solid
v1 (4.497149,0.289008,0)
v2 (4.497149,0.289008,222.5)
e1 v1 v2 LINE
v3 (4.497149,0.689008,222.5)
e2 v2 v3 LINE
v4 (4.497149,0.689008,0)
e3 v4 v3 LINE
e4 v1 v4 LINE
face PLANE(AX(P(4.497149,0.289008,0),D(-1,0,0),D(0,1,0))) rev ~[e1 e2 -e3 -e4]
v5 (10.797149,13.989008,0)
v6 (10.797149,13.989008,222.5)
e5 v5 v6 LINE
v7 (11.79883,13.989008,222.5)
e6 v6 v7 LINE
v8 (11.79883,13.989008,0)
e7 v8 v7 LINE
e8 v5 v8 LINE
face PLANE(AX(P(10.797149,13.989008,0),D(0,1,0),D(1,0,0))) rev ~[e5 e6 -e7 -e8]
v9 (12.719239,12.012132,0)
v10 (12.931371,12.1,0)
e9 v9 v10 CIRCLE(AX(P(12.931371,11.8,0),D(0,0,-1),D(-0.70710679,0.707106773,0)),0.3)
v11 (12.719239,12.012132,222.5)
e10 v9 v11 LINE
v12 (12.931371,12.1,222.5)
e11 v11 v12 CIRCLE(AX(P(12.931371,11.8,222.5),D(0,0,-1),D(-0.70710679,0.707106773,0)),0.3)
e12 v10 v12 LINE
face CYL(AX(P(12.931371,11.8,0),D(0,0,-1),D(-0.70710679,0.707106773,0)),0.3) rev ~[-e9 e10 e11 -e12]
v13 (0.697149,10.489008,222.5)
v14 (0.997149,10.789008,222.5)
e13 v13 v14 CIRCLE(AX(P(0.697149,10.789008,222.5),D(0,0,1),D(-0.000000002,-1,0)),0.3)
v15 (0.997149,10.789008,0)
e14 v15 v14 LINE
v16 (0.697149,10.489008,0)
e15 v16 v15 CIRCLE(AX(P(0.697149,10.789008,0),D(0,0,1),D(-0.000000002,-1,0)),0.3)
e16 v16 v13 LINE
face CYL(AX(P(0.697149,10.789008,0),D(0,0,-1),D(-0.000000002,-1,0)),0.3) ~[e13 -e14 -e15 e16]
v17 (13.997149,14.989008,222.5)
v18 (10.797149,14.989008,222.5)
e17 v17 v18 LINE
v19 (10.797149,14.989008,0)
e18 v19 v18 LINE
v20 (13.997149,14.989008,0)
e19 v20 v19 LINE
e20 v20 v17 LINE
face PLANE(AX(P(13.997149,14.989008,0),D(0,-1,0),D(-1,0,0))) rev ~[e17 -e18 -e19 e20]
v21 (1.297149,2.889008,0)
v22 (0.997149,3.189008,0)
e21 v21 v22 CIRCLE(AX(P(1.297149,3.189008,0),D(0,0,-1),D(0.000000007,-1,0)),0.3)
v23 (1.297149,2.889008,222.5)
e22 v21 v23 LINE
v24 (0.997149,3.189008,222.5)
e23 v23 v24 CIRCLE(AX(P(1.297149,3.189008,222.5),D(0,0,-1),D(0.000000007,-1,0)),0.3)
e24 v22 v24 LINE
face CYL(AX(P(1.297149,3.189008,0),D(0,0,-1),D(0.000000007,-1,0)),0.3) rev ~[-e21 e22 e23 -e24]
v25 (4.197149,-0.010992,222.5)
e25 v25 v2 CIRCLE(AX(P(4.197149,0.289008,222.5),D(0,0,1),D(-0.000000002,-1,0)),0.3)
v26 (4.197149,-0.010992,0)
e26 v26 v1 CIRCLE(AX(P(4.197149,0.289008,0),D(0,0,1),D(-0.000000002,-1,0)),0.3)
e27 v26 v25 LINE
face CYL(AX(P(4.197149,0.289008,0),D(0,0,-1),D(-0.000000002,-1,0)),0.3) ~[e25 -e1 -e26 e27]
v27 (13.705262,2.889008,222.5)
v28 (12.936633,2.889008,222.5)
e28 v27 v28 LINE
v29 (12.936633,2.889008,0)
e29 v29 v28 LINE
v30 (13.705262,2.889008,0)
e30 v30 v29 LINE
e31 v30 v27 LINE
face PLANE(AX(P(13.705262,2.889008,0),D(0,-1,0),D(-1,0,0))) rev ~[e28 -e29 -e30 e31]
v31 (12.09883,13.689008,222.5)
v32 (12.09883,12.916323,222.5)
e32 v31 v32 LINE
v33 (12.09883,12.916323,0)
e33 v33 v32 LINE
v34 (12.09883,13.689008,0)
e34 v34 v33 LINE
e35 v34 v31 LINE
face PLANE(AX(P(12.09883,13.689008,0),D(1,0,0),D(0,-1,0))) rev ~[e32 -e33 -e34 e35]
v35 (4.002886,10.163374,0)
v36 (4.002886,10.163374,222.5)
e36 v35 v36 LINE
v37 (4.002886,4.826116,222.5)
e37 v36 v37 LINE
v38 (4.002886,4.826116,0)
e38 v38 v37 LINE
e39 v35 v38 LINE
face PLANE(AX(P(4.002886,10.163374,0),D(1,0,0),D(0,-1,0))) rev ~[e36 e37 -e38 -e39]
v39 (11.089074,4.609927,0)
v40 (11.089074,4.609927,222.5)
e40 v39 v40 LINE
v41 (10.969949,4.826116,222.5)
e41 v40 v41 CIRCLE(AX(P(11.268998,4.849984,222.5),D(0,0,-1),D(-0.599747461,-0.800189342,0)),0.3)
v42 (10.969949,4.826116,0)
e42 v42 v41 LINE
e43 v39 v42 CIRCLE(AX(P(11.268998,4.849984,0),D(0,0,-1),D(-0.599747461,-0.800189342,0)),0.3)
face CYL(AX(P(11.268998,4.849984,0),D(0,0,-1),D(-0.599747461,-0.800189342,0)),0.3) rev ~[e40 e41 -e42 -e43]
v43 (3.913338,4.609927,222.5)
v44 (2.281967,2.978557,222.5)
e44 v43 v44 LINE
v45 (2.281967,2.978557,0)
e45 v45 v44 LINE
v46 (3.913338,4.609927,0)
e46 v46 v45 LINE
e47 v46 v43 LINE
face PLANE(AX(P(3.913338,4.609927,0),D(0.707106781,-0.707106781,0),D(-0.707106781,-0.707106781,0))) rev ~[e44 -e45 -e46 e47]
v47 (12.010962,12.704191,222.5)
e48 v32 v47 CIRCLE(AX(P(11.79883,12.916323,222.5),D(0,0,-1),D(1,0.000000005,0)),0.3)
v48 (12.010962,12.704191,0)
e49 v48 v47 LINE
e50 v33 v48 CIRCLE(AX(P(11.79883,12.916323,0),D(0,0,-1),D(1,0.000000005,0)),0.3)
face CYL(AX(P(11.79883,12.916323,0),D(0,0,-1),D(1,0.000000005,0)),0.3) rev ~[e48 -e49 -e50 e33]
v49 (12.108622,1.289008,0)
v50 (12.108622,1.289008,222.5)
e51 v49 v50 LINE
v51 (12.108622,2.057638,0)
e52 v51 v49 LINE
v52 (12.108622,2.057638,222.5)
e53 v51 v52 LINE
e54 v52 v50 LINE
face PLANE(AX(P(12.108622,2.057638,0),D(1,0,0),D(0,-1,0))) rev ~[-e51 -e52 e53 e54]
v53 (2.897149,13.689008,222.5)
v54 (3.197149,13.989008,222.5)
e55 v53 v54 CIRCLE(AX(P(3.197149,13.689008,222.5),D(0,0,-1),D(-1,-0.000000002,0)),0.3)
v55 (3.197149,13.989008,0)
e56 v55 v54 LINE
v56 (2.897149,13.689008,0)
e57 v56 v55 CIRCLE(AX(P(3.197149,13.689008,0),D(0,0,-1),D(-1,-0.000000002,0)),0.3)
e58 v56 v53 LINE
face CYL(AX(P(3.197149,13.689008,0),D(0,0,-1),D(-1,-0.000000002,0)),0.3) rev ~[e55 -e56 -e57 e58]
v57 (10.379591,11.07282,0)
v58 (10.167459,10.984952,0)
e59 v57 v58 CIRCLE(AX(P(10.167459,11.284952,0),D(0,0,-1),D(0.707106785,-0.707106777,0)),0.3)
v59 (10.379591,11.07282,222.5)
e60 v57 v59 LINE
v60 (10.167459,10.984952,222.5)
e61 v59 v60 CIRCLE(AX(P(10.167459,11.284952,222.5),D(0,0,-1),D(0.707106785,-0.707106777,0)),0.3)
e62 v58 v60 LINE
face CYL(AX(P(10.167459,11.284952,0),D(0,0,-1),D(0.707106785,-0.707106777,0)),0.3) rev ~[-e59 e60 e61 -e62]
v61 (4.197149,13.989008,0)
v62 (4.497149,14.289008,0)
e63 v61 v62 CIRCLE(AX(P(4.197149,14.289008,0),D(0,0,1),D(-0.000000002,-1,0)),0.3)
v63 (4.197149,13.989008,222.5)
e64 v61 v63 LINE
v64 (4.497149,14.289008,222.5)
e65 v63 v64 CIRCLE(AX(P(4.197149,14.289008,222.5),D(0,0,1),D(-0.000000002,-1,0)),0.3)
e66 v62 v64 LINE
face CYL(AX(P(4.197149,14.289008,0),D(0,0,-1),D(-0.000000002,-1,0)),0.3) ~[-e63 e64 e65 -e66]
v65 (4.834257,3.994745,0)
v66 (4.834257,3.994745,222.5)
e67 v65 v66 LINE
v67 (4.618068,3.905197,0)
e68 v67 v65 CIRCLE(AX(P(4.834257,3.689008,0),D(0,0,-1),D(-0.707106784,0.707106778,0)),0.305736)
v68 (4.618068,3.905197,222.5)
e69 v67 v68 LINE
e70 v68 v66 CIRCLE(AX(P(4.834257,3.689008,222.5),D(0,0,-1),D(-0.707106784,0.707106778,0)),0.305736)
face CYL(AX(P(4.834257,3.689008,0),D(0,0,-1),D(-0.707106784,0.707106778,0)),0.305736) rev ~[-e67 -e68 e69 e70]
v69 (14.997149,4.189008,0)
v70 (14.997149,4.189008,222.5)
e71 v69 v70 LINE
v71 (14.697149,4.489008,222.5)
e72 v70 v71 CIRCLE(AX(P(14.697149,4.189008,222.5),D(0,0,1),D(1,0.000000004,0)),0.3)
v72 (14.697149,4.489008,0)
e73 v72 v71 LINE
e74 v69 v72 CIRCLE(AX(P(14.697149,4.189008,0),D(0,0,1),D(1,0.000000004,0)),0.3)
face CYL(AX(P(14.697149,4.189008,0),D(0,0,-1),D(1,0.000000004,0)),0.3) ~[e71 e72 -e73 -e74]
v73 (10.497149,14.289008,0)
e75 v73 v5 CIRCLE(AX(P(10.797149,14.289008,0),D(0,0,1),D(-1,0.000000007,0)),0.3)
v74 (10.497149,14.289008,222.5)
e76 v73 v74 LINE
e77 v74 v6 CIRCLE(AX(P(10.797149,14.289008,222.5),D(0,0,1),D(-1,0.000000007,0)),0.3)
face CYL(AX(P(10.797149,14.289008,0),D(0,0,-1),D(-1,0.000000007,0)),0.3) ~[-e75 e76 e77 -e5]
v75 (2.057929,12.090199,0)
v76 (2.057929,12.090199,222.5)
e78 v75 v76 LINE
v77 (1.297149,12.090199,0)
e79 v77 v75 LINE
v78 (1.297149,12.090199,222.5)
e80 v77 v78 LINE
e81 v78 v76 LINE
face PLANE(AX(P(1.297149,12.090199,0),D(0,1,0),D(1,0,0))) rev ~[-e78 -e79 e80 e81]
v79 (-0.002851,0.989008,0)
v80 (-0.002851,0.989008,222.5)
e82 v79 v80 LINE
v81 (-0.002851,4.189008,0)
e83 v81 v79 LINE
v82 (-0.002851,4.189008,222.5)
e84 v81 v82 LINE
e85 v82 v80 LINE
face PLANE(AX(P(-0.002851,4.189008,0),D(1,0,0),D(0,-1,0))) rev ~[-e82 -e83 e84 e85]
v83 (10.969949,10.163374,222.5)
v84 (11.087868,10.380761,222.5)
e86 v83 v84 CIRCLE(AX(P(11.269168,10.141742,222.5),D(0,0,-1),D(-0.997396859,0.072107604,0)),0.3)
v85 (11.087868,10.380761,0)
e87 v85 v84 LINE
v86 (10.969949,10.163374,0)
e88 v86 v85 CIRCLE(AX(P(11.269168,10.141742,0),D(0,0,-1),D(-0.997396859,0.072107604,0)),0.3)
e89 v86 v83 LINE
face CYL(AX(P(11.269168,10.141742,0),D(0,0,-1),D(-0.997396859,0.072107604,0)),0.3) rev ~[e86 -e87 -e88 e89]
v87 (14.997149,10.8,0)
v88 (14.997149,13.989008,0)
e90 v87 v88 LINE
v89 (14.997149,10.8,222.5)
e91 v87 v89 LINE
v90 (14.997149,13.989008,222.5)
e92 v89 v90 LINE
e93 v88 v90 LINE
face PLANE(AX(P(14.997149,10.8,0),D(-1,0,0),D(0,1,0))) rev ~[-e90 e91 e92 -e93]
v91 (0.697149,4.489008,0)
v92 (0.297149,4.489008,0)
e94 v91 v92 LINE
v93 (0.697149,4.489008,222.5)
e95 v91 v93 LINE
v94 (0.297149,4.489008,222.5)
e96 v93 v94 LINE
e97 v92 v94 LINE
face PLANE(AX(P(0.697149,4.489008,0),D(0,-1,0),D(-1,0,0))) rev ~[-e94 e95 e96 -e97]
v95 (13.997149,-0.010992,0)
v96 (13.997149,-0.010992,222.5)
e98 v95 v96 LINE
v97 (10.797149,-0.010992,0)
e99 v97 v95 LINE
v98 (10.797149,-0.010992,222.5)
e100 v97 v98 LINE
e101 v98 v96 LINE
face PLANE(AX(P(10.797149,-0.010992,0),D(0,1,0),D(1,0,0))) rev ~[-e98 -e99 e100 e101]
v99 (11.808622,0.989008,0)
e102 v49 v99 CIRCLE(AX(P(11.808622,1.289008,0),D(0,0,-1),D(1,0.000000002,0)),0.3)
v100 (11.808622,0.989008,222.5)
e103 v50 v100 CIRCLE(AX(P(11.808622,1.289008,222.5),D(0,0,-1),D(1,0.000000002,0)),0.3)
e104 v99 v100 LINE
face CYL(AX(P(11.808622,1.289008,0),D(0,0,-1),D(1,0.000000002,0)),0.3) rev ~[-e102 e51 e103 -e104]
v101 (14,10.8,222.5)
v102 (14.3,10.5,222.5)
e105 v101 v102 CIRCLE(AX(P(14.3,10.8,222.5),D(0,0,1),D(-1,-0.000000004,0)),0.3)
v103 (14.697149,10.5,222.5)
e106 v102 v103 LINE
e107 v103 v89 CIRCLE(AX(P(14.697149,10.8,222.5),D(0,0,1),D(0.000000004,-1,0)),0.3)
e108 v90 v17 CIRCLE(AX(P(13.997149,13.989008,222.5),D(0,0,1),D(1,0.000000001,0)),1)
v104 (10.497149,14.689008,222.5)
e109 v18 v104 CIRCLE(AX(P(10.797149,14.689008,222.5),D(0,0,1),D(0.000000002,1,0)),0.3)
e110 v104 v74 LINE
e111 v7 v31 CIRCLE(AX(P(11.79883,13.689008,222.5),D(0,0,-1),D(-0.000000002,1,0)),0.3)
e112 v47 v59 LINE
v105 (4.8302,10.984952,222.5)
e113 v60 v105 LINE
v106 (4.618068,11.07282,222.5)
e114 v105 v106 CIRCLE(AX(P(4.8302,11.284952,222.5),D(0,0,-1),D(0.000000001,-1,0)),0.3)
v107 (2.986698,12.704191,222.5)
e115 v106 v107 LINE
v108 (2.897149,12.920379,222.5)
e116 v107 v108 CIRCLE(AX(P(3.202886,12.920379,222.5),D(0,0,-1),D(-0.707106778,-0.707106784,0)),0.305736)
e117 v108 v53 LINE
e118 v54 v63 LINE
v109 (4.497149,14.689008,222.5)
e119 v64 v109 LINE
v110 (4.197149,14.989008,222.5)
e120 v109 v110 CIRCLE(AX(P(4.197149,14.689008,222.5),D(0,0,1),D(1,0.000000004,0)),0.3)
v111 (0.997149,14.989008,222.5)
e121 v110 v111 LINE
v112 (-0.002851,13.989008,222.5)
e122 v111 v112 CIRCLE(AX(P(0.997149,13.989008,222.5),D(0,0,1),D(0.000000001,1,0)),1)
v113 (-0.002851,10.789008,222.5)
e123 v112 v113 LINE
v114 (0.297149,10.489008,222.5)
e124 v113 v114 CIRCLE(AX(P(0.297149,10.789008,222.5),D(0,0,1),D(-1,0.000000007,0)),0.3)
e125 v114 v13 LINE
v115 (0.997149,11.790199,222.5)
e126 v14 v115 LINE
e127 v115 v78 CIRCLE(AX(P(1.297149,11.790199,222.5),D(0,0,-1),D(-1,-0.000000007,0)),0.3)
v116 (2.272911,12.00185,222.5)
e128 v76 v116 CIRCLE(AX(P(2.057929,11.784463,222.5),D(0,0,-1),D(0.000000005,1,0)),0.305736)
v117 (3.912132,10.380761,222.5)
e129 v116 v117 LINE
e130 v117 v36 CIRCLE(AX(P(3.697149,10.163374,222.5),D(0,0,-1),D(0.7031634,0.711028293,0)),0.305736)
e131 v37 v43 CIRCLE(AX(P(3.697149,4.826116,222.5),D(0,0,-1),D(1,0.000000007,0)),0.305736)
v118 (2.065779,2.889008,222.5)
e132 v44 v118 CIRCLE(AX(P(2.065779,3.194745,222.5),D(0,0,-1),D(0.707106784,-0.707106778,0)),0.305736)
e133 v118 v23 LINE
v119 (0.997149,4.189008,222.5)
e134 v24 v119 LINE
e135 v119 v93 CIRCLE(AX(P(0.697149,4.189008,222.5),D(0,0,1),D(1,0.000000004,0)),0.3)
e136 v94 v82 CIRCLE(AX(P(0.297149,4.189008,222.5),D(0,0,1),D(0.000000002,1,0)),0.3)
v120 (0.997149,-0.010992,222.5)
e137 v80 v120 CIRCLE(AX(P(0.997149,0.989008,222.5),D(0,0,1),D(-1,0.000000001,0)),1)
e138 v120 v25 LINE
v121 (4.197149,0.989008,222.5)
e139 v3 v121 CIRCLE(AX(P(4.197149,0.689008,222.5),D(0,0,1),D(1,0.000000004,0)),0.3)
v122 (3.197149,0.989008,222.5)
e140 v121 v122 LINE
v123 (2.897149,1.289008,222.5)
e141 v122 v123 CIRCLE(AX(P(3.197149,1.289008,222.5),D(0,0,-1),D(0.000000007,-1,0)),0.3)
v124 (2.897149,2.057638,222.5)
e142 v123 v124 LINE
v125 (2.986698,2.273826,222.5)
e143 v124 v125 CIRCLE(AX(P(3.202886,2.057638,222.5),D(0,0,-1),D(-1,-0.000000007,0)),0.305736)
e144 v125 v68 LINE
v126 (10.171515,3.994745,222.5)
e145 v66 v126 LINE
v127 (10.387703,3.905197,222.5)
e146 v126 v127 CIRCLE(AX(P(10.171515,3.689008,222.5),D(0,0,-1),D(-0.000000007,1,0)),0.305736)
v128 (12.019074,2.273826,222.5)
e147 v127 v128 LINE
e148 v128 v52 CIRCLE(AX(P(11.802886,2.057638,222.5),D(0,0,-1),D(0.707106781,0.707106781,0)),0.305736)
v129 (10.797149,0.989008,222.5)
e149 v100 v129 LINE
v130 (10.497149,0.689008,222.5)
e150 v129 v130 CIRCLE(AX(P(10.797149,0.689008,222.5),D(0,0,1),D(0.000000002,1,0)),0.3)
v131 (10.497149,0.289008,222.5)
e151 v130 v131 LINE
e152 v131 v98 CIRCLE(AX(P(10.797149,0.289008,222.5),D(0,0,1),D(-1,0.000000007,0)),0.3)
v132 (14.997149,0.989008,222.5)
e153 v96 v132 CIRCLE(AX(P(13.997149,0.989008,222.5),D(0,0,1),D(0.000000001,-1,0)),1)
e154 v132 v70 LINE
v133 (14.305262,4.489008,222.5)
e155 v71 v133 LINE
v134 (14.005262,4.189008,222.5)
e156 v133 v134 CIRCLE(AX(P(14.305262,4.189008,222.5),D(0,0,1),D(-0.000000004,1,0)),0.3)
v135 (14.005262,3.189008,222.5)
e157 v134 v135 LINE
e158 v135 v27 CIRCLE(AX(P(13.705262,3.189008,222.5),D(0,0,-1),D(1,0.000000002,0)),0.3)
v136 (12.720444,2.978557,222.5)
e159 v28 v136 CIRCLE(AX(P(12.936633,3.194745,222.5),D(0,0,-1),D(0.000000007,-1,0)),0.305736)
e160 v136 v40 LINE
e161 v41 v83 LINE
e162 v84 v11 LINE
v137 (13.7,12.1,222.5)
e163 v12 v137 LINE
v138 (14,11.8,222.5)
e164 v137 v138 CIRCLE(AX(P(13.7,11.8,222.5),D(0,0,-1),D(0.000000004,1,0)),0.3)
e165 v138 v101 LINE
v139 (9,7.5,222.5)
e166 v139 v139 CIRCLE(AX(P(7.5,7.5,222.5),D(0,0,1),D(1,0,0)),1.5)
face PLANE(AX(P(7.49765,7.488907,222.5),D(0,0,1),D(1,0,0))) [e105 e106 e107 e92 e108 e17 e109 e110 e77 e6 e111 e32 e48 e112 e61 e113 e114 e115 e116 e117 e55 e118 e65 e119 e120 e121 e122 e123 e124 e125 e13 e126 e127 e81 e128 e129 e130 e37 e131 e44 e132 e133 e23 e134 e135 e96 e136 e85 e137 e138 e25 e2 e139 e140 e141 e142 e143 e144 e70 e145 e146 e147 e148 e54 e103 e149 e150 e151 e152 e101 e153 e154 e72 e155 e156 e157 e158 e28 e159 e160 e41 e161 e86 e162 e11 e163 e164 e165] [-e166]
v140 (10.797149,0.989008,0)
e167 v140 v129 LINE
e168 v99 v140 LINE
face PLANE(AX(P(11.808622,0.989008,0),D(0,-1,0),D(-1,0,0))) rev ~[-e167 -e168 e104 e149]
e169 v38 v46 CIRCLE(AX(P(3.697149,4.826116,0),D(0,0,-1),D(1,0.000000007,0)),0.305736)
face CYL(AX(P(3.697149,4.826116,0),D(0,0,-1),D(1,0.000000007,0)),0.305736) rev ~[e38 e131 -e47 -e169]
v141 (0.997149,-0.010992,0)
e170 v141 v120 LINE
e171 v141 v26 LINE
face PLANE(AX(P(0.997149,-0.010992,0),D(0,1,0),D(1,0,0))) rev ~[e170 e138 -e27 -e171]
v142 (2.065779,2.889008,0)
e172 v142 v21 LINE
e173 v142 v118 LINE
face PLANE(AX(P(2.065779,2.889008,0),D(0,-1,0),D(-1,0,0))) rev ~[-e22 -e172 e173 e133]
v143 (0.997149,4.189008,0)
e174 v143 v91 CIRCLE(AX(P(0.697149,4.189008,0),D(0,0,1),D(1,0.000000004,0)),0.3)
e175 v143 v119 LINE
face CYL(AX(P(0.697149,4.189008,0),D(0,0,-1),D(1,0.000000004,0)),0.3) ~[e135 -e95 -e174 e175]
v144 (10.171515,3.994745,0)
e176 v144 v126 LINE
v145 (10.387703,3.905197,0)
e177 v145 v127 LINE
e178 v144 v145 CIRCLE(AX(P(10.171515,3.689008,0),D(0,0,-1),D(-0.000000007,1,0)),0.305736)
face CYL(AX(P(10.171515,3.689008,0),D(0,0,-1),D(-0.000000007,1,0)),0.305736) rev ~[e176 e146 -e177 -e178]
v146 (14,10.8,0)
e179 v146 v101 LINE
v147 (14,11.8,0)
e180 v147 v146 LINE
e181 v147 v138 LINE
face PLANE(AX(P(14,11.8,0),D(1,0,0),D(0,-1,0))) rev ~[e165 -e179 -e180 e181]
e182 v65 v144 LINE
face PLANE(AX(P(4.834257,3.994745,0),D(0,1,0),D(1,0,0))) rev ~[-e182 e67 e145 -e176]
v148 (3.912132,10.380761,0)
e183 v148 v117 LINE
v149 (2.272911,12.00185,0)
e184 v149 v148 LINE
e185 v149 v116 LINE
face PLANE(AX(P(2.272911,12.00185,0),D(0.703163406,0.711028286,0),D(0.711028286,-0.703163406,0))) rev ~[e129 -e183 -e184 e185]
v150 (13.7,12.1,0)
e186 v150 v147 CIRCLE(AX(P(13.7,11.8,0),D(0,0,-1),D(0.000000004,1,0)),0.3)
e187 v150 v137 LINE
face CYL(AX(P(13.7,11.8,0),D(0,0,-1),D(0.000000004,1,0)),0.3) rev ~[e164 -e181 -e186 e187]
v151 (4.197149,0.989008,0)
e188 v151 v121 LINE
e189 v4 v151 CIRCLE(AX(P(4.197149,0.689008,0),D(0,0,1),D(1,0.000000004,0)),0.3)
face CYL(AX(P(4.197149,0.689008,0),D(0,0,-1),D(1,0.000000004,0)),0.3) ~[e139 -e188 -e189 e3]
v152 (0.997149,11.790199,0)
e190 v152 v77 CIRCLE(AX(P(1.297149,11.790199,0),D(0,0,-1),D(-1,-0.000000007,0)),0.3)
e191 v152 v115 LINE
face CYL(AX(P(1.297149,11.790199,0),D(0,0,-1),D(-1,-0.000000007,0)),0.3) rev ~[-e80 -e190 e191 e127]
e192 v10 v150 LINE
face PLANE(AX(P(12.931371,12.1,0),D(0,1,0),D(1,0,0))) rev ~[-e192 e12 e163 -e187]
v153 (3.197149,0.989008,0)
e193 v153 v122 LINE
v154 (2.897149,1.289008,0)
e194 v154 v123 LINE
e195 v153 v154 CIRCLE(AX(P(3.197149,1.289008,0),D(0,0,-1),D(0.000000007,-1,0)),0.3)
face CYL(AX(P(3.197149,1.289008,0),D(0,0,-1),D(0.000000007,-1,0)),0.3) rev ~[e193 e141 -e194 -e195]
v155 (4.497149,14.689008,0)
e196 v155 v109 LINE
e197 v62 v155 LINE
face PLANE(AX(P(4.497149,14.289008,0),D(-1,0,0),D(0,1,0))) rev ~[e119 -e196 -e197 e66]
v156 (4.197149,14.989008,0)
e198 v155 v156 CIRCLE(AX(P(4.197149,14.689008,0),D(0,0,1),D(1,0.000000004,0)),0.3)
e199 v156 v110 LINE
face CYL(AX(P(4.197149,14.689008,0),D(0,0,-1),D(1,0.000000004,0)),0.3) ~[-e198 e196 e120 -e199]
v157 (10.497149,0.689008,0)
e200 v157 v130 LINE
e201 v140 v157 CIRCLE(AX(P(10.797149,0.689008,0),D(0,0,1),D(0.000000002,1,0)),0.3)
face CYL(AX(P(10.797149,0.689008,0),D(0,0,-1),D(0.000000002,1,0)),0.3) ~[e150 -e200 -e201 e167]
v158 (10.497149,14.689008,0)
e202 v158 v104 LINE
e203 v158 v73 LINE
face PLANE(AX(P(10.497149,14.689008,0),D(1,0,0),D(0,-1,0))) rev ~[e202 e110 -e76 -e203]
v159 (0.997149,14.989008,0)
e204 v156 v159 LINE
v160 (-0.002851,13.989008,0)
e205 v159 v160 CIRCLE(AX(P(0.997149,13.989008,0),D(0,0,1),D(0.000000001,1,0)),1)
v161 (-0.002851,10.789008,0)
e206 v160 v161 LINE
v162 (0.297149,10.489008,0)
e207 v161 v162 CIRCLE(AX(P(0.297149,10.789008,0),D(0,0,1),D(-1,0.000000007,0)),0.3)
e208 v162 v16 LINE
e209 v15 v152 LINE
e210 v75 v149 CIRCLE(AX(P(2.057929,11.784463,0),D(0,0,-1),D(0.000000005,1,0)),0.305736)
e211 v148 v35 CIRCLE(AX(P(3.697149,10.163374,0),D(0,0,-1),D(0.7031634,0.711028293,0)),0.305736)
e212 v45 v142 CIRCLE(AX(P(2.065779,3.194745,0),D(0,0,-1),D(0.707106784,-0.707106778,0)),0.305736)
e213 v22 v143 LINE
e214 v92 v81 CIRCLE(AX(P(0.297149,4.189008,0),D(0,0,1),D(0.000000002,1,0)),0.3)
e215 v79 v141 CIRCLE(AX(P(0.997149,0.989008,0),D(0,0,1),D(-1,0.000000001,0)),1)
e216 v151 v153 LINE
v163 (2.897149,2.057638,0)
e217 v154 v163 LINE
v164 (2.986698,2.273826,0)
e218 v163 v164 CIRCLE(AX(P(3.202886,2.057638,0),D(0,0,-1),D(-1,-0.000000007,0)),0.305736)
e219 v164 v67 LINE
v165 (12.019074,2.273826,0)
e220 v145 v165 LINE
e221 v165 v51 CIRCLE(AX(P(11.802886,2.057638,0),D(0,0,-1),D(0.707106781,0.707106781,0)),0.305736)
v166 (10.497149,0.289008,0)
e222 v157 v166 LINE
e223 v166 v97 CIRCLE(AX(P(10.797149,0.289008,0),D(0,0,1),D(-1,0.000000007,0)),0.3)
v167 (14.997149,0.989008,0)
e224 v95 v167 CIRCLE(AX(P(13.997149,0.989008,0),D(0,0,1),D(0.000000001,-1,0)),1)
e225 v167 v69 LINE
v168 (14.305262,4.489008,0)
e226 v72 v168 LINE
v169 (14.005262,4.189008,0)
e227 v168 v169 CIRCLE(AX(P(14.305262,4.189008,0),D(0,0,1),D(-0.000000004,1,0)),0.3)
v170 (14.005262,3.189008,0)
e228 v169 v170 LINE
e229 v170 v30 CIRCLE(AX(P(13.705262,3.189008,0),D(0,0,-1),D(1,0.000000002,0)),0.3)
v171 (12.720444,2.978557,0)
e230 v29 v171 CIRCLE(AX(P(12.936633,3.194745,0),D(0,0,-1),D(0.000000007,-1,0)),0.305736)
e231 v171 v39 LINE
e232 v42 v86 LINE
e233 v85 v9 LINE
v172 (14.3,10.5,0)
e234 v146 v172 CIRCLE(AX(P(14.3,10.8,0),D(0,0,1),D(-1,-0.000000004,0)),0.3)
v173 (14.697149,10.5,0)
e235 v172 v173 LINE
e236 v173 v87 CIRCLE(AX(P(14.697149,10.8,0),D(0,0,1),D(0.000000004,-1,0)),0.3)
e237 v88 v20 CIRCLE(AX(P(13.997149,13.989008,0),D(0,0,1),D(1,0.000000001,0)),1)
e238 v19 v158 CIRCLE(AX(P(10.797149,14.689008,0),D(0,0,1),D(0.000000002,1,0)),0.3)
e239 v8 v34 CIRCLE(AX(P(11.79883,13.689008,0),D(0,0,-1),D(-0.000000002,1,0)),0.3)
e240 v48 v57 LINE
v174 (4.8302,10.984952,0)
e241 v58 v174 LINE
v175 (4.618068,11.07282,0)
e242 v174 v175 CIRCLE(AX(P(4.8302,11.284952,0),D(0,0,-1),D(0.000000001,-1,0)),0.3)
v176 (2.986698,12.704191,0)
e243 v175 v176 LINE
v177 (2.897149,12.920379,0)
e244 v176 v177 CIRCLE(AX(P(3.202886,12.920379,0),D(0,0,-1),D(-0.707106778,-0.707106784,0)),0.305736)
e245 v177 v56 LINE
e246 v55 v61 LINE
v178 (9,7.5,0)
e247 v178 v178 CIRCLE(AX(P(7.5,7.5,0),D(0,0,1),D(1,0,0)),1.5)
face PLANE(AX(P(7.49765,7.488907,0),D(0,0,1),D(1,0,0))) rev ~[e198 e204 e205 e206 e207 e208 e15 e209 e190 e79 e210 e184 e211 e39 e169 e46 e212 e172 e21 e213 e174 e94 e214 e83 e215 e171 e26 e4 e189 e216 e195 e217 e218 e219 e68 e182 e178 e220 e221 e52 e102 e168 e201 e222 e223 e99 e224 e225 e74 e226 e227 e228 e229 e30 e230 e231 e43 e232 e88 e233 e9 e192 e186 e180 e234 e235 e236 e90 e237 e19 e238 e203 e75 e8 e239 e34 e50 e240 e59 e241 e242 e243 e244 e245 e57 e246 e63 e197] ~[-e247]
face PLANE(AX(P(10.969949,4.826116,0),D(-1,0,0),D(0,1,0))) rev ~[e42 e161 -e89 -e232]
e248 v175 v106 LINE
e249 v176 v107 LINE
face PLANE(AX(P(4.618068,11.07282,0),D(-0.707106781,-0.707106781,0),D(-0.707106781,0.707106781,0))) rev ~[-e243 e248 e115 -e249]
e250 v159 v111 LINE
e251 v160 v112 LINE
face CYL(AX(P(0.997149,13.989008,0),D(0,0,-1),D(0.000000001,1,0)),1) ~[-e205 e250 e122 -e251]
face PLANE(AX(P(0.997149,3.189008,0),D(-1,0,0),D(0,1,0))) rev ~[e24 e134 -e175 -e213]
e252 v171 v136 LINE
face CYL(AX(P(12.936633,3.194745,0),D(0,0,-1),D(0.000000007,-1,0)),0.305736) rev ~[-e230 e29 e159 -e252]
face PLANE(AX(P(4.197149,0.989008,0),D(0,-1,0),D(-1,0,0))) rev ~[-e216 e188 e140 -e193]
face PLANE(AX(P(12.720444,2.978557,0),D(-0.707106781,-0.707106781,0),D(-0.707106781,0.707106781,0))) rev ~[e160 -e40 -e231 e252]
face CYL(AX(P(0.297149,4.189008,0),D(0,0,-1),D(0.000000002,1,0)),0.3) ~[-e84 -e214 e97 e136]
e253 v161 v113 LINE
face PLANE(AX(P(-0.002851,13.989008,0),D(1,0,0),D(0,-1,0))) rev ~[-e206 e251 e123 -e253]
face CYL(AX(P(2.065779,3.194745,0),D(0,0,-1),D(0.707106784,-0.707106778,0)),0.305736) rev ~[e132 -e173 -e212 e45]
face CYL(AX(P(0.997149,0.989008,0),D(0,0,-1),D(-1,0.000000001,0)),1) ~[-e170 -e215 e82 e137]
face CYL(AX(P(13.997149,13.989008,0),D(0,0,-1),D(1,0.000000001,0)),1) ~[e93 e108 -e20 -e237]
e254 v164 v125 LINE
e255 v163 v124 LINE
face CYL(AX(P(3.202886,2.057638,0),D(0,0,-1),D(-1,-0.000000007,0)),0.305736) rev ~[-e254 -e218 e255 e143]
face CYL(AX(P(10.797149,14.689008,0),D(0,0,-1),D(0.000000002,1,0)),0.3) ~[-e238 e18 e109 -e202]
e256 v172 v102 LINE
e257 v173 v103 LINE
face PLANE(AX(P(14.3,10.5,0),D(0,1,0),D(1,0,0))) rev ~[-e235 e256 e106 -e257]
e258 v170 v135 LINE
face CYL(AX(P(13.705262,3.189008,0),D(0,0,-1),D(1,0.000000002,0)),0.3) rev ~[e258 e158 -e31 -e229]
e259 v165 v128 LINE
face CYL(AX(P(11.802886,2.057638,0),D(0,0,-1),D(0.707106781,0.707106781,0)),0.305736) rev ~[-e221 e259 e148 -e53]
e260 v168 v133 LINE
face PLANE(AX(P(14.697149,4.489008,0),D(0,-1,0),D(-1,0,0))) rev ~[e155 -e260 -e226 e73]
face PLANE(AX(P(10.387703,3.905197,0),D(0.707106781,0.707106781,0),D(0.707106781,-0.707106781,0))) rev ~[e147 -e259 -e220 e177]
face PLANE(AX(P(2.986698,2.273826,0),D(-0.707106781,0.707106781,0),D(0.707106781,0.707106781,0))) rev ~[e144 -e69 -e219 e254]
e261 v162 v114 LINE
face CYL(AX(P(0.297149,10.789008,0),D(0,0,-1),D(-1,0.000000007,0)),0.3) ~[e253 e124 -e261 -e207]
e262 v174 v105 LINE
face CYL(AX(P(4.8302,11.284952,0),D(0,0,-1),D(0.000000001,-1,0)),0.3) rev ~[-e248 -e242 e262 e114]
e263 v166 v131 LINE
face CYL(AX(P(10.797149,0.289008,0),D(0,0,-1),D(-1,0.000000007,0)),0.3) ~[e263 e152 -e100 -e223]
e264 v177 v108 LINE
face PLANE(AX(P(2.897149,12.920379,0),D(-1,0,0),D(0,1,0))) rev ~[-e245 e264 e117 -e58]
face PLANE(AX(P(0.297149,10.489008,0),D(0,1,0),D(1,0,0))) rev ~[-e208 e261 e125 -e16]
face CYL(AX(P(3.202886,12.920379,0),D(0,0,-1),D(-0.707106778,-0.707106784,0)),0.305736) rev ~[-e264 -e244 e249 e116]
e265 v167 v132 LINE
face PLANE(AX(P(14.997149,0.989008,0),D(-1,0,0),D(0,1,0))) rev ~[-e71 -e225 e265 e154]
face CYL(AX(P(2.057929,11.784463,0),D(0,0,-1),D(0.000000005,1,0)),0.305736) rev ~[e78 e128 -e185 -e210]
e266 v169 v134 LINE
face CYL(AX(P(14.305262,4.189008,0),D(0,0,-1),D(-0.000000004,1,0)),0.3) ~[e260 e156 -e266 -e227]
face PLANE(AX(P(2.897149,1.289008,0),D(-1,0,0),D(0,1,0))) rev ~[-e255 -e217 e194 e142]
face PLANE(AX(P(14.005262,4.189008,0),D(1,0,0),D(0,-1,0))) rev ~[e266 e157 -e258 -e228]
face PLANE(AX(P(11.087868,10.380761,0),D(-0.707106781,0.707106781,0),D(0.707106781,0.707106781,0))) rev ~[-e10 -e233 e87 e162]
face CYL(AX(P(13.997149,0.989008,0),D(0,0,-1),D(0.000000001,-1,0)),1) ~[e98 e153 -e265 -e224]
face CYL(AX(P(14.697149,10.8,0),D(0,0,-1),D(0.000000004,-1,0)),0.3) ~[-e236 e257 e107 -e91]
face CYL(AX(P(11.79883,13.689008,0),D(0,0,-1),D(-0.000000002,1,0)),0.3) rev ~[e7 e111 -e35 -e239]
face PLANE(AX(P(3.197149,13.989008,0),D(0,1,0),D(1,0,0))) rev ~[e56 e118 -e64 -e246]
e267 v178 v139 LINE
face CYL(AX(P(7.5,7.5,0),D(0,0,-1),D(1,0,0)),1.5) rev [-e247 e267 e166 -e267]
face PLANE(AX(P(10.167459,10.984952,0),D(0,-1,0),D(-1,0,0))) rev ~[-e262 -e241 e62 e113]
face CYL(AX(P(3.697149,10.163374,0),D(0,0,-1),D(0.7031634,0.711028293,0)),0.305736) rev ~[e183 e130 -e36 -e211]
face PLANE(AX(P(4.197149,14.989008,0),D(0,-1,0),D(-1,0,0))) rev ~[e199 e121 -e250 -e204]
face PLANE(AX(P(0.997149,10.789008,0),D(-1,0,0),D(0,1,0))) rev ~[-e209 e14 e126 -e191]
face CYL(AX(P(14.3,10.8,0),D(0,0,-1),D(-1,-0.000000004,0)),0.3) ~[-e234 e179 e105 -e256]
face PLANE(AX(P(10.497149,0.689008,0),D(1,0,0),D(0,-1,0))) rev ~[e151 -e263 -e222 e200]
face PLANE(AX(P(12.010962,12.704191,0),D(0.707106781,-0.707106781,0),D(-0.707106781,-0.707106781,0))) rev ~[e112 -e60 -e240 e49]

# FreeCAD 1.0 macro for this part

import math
import FreeCAD as App
import Part
import Sketcher

V = App.Vector

doc = App.newDocument("Part")
body = doc.addObject("PartDesign::Body", "Body")

# Sketch on XY plane
sketch1 = body.newObject("Sketcher::SketchObject", "Sketch")
sketch1.AttachmentSupport = (doc.getObject("XY_Plane"), [""])
sketch1.MapMode = "FlatFace"
sketch1.addGeometry(Part.LineSegment(V(1, -0.01, 0), V(4.2, -0.01, 0)), False)
sketch1.addGeometry(Part.ArcOfCircle(Part.Circle(V(4.2, 0.29, 0), V(0, 0, 1), 0.3), math.radians(-90), math.radians(0)), False)
sketch1.addGeometry(Part.LineSegment(V(4.5, 0.29, 0), V(4.5, 0.69, 0)), False)
sketch1.addGeometry(Part.ArcOfCircle(Part.Circle(V(4.2, 0.69, 0), V(0, 0, 1), 0.3), math.radians(0), math.radians(90)), False)
sketch1.addGeometry(Part.LineSegment(V(4.2, 0.99, 0), V(3.2, 0.99, 0)), False)
sketch1.addGeometry(Part.ArcOfCircle(Part.Circle(V(3.2, 1.29, 0), V(0, 0, 1), 0.3), math.radians(180), math.radians(270)), False)
sketch1.addGeometry(Part.LineSegment(V(2.9, 1.29, 0), V(2.9, 2.06, 0)), False)
sketch1.addGeometry(Part.ArcOfCircle(Part.Circle(V(3.2, 2.06, 0), V(0, 0, 1), 0.31), math.radians(135), math.radians(180)), False)
sketch1.addGeometry(Part.LineSegment(V(2.99, 2.27, 0), V(4.62, 3.91, 0)), False)
sketch1.addGeometry(Part.ArcOfCircle(Part.Circle(V(4.83, 3.69, 0), V(0, 0, 1), 0.31), math.radians(90), math.radians(135)), False)
sketch1.addGeometry(Part.LineSegment(V(4.83, 3.99, 0), V(10.17, 3.99, 0)), False)
sketch1.addGeometry(Part.ArcOfCircle(Part.Circle(V(10.17, 3.69, 0), V(0, 0, 1), 0.31), math.radians(45), math.radians(90)), False)
sketch1.addGeometry(Part.LineSegment(V(10.39, 3.91, 0), V(12.02, 2.27, 0)), False)
sketch1.addGeometry(Part.ArcOfCircle(Part.Circle(V(11.8, 2.06, 0), V(0, 0, 1), 0.31), math.radians(0), math.radians(45)), False)
sketch1.addGeometry(Part.LineSegment(V(12.11, 2.06, 0), V(12.11, 1.29, 0)), False)
sketch1.addGeometry(Part.ArcOfCircle(Part.Circle(V(11.81, 1.29, 0), V(0, 0, 1), 0.3), math.radians(-90), math.radians(0)), False)
sketch1.addGeometry(Part.LineSegment(V(11.81, 0.99, 0), V(10.8, 0.99, 0)), False)
sketch1.addGeometry(Part.ArcOfCircle(Part.Circle(V(10.8, 0.69, 0), V(0, 0, 1), 0.3), math.radians(90), math.radians(180)), False)
sketch1.addGeometry(Part.LineSegment(V(10.5, 0.69, 0), V(10.5, 0.29, 0)), False)
sketch1.addGeometry(Part.ArcOfCircle(Part.Circle(V(10.8, 0.29, 0), V(0, 0, 1), 0.3), math.radians(180), math.radians(270)), False)
sketch1.addGeometry(Part.LineSegment(V(10.8, -0.01, 0), V(14, -0.01, 0)), False)
sketch1.addGeometry(Part.ArcOfCircle(Part.Circle(V(14, 0.99, 0), V(0, 0, 1), 1), math.radians(-90), math.radians(0)), False)
sketch1.addGeometry(Part.LineSegment(V(15, 0.99, 0), V(15, 4.19, 0)), False)
sketch1.addGeometry(Part.ArcOfCircle(Part.Circle(V(14.7, 4.19, 0), V(0, 0, 1), 0.3), math.radians(0), math.radians(90)), False)
sketch1.addGeometry(Part.LineSegment(V(14.7, 4.49, 0), V(14.31, 4.49, 0)), False)
sketch1.addGeometry(Part.ArcOfCircle(Part.Circle(V(14.31, 4.19, 0), V(0, 0, 1), 0.3), math.radians(90), math.radians(180)), False)
sketch1.addGeometry(Part.LineSegment(V(14.01, 4.19, 0), V(14.01, 3.19, 0)), False)
sketch1.addGeometry(Part.ArcOfCircle(Part.Circle(V(13.71, 3.19, 0), V(0, 0, 1), 0.3), math.radians(-90), math.radians(0)), False)
sketch1.addGeometry(Part.LineSegment(V(13.71, 2.89, 0), V(12.94, 2.89, 0)), False)
sketch1.addGeometry(Part.ArcOfCircle(Part.Circle(V(12.94, 3.19, 0), V(0, 0, 1), 0.31), math.radians(-135), math.radians(-90)), False)
sketch1.addGeometry(Part.LineSegment(V(12.72, 2.98, 0), V(11.09, 4.61, 0)), False)
sketch1.addGeometry(Part.ArcOfCircle(Part.Circle(V(11.27, 4.85, 0), V(0, 0, 1), 0.3), math.radians(-175), math.radians(-127)), False)
sketch1.addGeometry(Part.LineSegment(V(10.97, 4.83, 0), V(10.97, 10.16, 0)), False)
sketch1.addGeometry(Part.ArcOfCircle(Part.Circle(V(11.27, 10.14, 0), V(0, 0, 1), 0.3), math.radians(127), math.radians(176)), False)
sketch1.addGeometry(Part.LineSegment(V(11.09, 10.38, 0), V(12.72, 12.01, 0)), False)
sketch1.addGeometry(Part.ArcOfCircle(Part.Circle(V(12.93, 11.8, 0), V(0, 0, 1), 0.3), math.radians(90), math.radians(135)), False)
sketch1.addGeometry(Part.LineSegment(V(12.93, 12.1, 0), V(13.7, 12.1, 0)), False)
sketch1.addGeometry(Part.ArcOfCircle(Part.Circle(V(13.7, 11.8, 0), V(0, 0, 1), 0.3), math.radians(0), math.radians(90)), False)
sketch1.addGeometry(Part.LineSegment(V(14, 11.8, 0), V(14, 10.8, 0)), False)
sketch1.addGeometry(Part.ArcOfCircle(Part.Circle(V(14.3, 10.8, 0), V(0, 0, 1), 0.3), math.radians(-180), math.radians(-90)), False)
sketch1.addGeometry(Part.LineSegment(V(14.3, 10.5, 0), V(14.7, 10.5, 0)), False)
sketch1.addGeometry(Part.ArcOfCircle(Part.Circle(V(14.7, 10.8, 0), V(0, 0, 1), 0.3), math.radians(-90), math.radians(0)), False)
sketch1.addGeometry(Part.LineSegment(V(15, 10.8, 0), V(15, 13.99, 0)), False)
sketch1.addGeometry(Part.ArcOfCircle(Part.Circle(V(14, 13.99, 0), V(0, 0, 1), 1), math.radians(0), math.radians(90)), False)
sketch1.addGeometry(Part.LineSegment(V(14, 14.99, 0), V(10.8, 14.99, 0)), False)
sketch1.addGeometry(Part.ArcOfCircle(Part.Circle(V(10.8, 14.69, 0), V(0, 0, 1), 0.3), math.radians(90), math.radians(180)), False)
sketch1.addGeometry(Part.LineSegment(V(10.5, 14.69, 0), V(10.5, 14.29, 0)), False)
sketch1.addGeometry(Part.ArcOfCircle(Part.Circle(V(10.8, 14.29, 0), V(0, 0, 1), 0.3), math.radians(180), math.radians(270)), False)
sketch1.addGeometry(Part.LineSegment(V(10.8, 13.99, 0), V(11.8, 13.99, 0)), False)
sketch1.addGeometry(Part.ArcOfCircle(Part.Circle(V(11.8, 13.69, 0), V(0, 0, 1), 0.3), math.radians(0), math.radians(90)), False)
sketch1.addGeometry(Part.LineSegment(V(12.1, 13.69, 0), V(12.1, 12.92, 0)), False)
sketch1.addGeometry(Part.ArcOfCircle(Part.Circle(V(11.8, 12.92, 0), V(0, 0, 1), 0.3), math.radians(-45), math.radians(0)), False)
sketch1.addGeometry(Part.LineSegment(V(12.01, 12.7, 0), V(10.38, 11.07, 0)), False)
sketch1.addGeometry(Part.ArcOfCircle(Part.Circle(V(10.17, 11.28, 0), V(0, 0, 1), 0.3), math.radians(-90), math.radians(-45)), False)
sketch1.addGeometry(Part.LineSegment(V(10.17, 10.98, 0), V(4.83, 10.98, 0)), False)
sketch1.addGeometry(Part.ArcOfCircle(Part.Circle(V(4.83, 11.28, 0), V(0, 0, 1), 0.3), math.radians(-135), math.radians(-90)), False)
sketch1.addGeometry(Part.LineSegment(V(4.62, 11.07, 0), V(2.99, 12.7, 0)), False)
sketch1.addGeometry(Part.ArcOfCircle(Part.Circle(V(3.2, 12.92, 0), V(0, 0, 1), 0.31), math.radians(180), math.radians(225)), False)
sketch1.addGeometry(Part.LineSegment(V(2.9, 12.92, 0), V(2.9, 13.69, 0)), False)
sketch1.addGeometry(Part.ArcOfCircle(Part.Circle(V(3.2, 13.69, 0), V(0, 0, 1), 0.3), math.radians(90), math.radians(180)), False)
sketch1.addGeometry(Part.LineSegment(V(3.2, 13.99, 0), V(4.2, 13.99, 0)), False)
sketch1.addGeometry(Part.ArcOfCircle(Part.Circle(V(4.2, 14.29, 0), V(0, 0, 1), 0.3), math.radians(-90), math.radians(0)), False)
sketch1.addGeometry(Part.LineSegment(V(4.5, 14.29, 0), V(4.5, 14.69, 0)), False)
sketch1.addGeometry(Part.ArcOfCircle(Part.Circle(V(4.2, 14.69, 0), V(0, 0, 1), 0.3), math.radians(0), math.radians(90)), False)
sketch1.addGeometry(Part.LineSegment(V(4.2, 14.99, 0), V(1, 14.99, 0)), False)
sketch1.addGeometry(Part.ArcOfCircle(Part.Circle(V(1, 13.99, 0), V(0, 0, 1), 1), math.radians(90), math.radians(180)), False)
sketch1.addGeometry(Part.LineSegment(V(0, 13.99, 0), V(0, 10.79, 0)), False)
sketch1.addGeometry(Part.ArcOfCircle(Part.Circle(V(0.3, 10.79, 0), V(0, 0, 1), 0.3), math.radians(180), math.radians(270)), False)
sketch1.addGeometry(Part.LineSegment(V(0.3, 10.49, 0), V(0.7, 10.49, 0)), False)
sketch1.addGeometry(Part.ArcOfCircle(Part.Circle(V(0.7, 10.79, 0), V(0, 0, 1), 0.3), math.radians(-90), math.radians(0)), False)
sketch1.addGeometry(Part.LineSegment(V(1, 10.79, 0), V(1, 11.79, 0)), False)
sketch1.addGeometry(Part.ArcOfCircle(Part.Circle(V(1.3, 11.79, 0), V(0, 0, 1), 0.3), math.radians(90), math.radians(180)), False)
sketch1.addGeometry(Part.LineSegment(V(1.3, 12.09, 0), V(2.06, 12.09, 0)), False)
sketch1.addGeometry(Part.ArcOfCircle(Part.Circle(V(2.06, 11.78, 0), V(0, 0, 1), 0.31), math.radians(45), math.radians(90)), False)
sketch1.addGeometry(Part.LineSegment(V(2.27, 12, 0), V(3.91, 10.38, 0)), False)
sketch1.addGeometry(Part.ArcOfCircle(Part.Circle(V(3.7, 10.16, 0), V(0, 0, 1), 0.31), math.radians(0), math.radians(45)), False)
sketch1.addGeometry(Part.LineSegment(V(4, 10.16, 0), V(4, 4.83, 0)), False)
sketch1.addGeometry(Part.ArcOfCircle(Part.Circle(V(3.7, 4.83, 0), V(0, 0, 1), 0.31), math.radians(-45), math.radians(0)), False)
sketch1.addGeometry(Part.LineSegment(V(3.91, 4.61, 0), V(2.28, 2.98, 0)), False)
sketch1.addGeometry(Part.ArcOfCircle(Part.Circle(V(2.07, 3.19, 0), V(0, 0, 1), 0.31), math.radians(-90), math.radians(-45)), False)
sketch1.addGeometry(Part.LineSegment(V(2.07, 2.89, 0), V(1.3, 2.89, 0)), False)
sketch1.addGeometry(Part.ArcOfCircle(Part.Circle(V(1.3, 3.19, 0), V(0, 0, 1), 0.3), math.radians(180), math.radians(270)), False)
sketch1.addGeometry(Part.LineSegment(V(1, 3.19, 0), V(1, 4.19, 0)), False)
sketch1.addGeometry(Part.ArcOfCircle(Part.Circle(V(0.7, 4.19, 0), V(0, 0, 1), 0.3), math.radians(0), math.radians(90)), False)
sketch1.addGeometry(Part.LineSegment(V(0.7, 4.49, 0), V(0.3, 4.49, 0)), False)
sketch1.addGeometry(Part.ArcOfCircle(Part.Circle(V(0.3, 4.19, 0), V(0, 0, 1), 0.3), math.radians(90), math.radians(180)), False)
sketch1.addGeometry(Part.LineSegment(V(0, 4.19, 0), V(0, 0.99, 0)), False)
sketch1.addGeometry(Part.ArcOfCircle(Part.Circle(V(1, 0.99, 0), V(0, 0, 1), 1), math.radians(180), math.radians(270)), False)
sketch1.addGeometry(Part.Circle(V(7.5, 7.5, 0), V(0, 0, 1), 1.5), False)
sketch1.addConstraint(Sketcher.Constraint("Tangent", 0, 2, 1, 1))
sketch1.addConstraint(Sketcher.Constraint("Tangent", 1, 2, 2, 1))
sketch1.addConstraint(Sketcher.Constraint("Tangent", 2, 2, 3, 1))
sketch1.addConstraint(Sketcher.Constraint("Tangent", 3, 2, 4, 1))
sketch1.addConstraint(Sketcher.Constraint("Tangent", 4, 2, 5, 2))
sketch1.addConstraint(Sketcher.Constraint("Tangent", 5, 1, 6, 1))
sketch1.addConstraint(Sketcher.Constraint("Tangent", 6, 2, 7, 2))
sketch1.addConstraint(Sketcher.Constraint("Tangent", 7, 1, 8, 1))
sketch1.addConstraint(Sketcher.Constraint("Tangent", 8, 2, 9, 2))
sketch1.addConstraint(Sketcher.Constraint("Tangent", 9, 1, 10, 1))
sketch1.addConstraint(Sketcher.Constraint("Tangent", 10, 2, 11, 2))
sketch1.addConstraint(Sketcher.Constraint("Tangent", 11, 1, 12, 1))
sketch1.addConstraint(Sketcher.Constraint("Tangent", 12, 2, 13, 2))
sketch1.addConstraint(Sketcher.Constraint("Tangent", 13, 1, 14, 1))
sketch1.addConstraint(Sketcher.Constraint("Tangent", 14, 2, 15, 2))
sketch1.addConstraint(Sketcher.Constraint("Tangent", 15, 1, 16, 1))
sketch1.addConstraint(Sketcher.Constraint("Tangent", 16, 2, 17, 1))
sketch1.addConstraint(Sketcher.Constraint("Tangent", 17, 2, 18, 1))
sketch1.addConstraint(Sketcher.Constraint("Tangent", 18, 2, 19, 1))
sketch1.addConstraint(Sketcher.Constraint("Tangent", 19, 2, 20, 1))
sketch1.addConstraint(Sketcher.Constraint("Tangent", 20, 2, 21, 1))
sketch1.addConstraint(Sketcher.Constraint("Tangent", 21, 2, 22, 1))
sketch1.addConstraint(Sketcher.Constraint("Tangent", 22, 2, 23, 1))
sketch1.addConstraint(Sketcher.Constraint("Tangent", 23, 2, 24, 1))
sketch1.addConstraint(Sketcher.Constraint("Tangent", 24, 2, 25, 1))
sketch1.addConstraint(Sketcher.Constraint("Tangent", 25, 2, 26, 1))
sketch1.addConstraint(Sketcher.Constraint("Tangent", 26, 2, 27, 2))
sketch1.addConstraint(Sketcher.Constraint("Tangent", 27, 1, 28, 1))
sketch1.addConstraint(Sketcher.Constraint("Tangent", 28, 2, 29, 2))
sketch1.addConstraint(Sketcher.Constraint("Tangent", 29, 1, 30, 1))
sketch1.addConstraint(Sketcher.Constraint("Coincident", 30, 2, 31, 2))
sketch1.addConstraint(Sketcher.Constraint("Coincident", 31, 1, 32, 1))
sketch1.addConstraint(Sketcher.Constraint("Coincident", 32, 2, 33, 2))
sketch1.addConstraint(Sketcher.Constraint("Coincident", 33, 1, 34, 1))
sketch1.addConstraint(Sketcher.Constraint("Tangent", 34, 2, 35, 2))
sketch1.addConstraint(Sketcher.Constraint("Tangent", 35, 1, 36, 1))
sketch1.addConstraint(Sketcher.Constraint("Tangent", 36, 2, 37, 2))
sketch1.addConstraint(Sketcher.Constraint("Tangent", 37, 1, 38, 1))
sketch1.addConstraint(Sketcher.Constraint("Tangent", 38, 2, 39, 1))
sketch1.addConstraint(Sketcher.Constraint("Tangent", 39, 2, 40, 1))
sketch1.addConstraint(Sketcher.Constraint("Tangent", 40, 2, 41, 1))
sketch1.addConstraint(Sketcher.Constraint("Tangent", 41, 2, 42, 1))
sketch1.addConstraint(Sketcher.Constraint("Tangent", 42, 2, 43, 1))
sketch1.addConstraint(Sketcher.Constraint("Tangent", 43, 2, 44, 1))
sketch1.addConstraint(Sketcher.Constraint("Tangent", 44, 2, 45, 1))
sketch1.addConstraint(Sketcher.Constraint("Tangent", 45, 2, 46, 1))
sketch1.addConstraint(Sketcher.Constraint("Tangent", 46, 2, 47, 1))
sketch1.addConstraint(Sketcher.Constraint("Tangent", 47, 2, 48, 1))
sketch1.addConstraint(Sketcher.Constraint("Tangent", 48, 2, 49, 2))
sketch1.addConstraint(Sketcher.Constraint("Tangent", 49, 1, 50, 1))
sketch1.addConstraint(Sketcher.Constraint("Tangent", 50, 2, 51, 2))
sketch1.addConstraint(Sketcher.Constraint("Tangent", 51, 1, 52, 1))
sketch1.addConstraint(Sketcher.Constraint("Tangent", 52, 2, 53, 2))
sketch1.addConstraint(Sketcher.Constraint("Tangent", 53, 1, 54, 1))
sketch1.addConstraint(Sketcher.Constraint("Tangent", 54, 2, 55, 2))
sketch1.addConstraint(Sketcher.Constraint("Tangent", 55, 1, 56, 1))
sketch1.addConstraint(Sketcher.Constraint("Tangent", 56, 2, 57, 2))
sketch1.addConstraint(Sketcher.Constraint("Tangent", 57, 1, 58, 1))
sketch1.addConstraint(Sketcher.Constraint("Tangent", 58, 2, 59, 2))
sketch1.addConstraint(Sketcher.Constraint("Tangent", 59, 1, 60, 1))
sketch1.addConstraint(Sketcher.Constraint("Tangent", 60, 2, 61, 1))
sketch1.addConstraint(Sketcher.Constraint("Tangent", 61, 2, 62, 1))
sketch1.addConstraint(Sketcher.Constraint("Tangent", 62, 2, 63, 1))
sketch1.addConstraint(Sketcher.Constraint("Tangent", 63, 2, 64, 1))
sketch1.addConstraint(Sketcher.Constraint("Tangent", 64, 2, 65, 1))
sketch1.addConstraint(Sketcher.Constraint("Tangent", 65, 2, 66, 1))
sketch1.addConstraint(Sketcher.Constraint("Tangent", 66, 2, 67, 1))
sketch1.addConstraint(Sketcher.Constraint("Tangent", 67, 2, 68, 1))
sketch1.addConstraint(Sketcher.Constraint("Tangent", 68, 2, 69, 1))
sketch1.addConstraint(Sketcher.Constraint("Tangent", 69, 2, 70, 1))
sketch1.addConstraint(Sketcher.Constraint("Tangent", 70, 2, 71, 2))
sketch1.addConstraint(Sketcher.Constraint("Tangent", 71, 1, 72, 1))
sketch1.addConstraint(Sketcher.Constraint("Tangent", 72, 2, 73, 2))
sketch1.addConstraint(Sketcher.Constraint("Tangent", 73, 1, 74, 1))
sketch1.addConstraint(Sketcher.Constraint("Tangent", 74, 2, 75, 2))
sketch1.addConstraint(Sketcher.Constraint("Tangent", 75, 1, 76, 1))
sketch1.addConstraint(Sketcher.Constraint("Tangent", 76, 2, 77, 2))
sketch1.addConstraint(Sketcher.Constraint("Tangent", 77, 1, 78, 1))
sketch1.addConstraint(Sketcher.Constraint("Tangent", 78, 2, 79, 2))
sketch1.addConstraint(Sketcher.Constraint("Tangent", 79, 1, 80, 1))
sketch1.addConstraint(Sketcher.Constraint("Tangent", 80, 2, 81, 2))
sketch1.addConstraint(Sketcher.Constraint("Tangent", 81, 1, 82, 1))
sketch1.addConstraint(Sketcher.Constraint("Tangent", 82, 2, 83, 1))
sketch1.addConstraint(Sketcher.Constraint("Tangent", 83, 2, 84, 1))
sketch1.addConstraint(Sketcher.Constraint("Tangent", 84, 2, 85, 1))
sketch1.addConstraint(Sketcher.Constraint("Tangent", 85, 2, 86, 1))
sketch1.addConstraint(Sketcher.Constraint("Tangent", 86, 2, 87, 1))
sketch1.addConstraint(Sketcher.Constraint("Tangent", 87, 2, 0, 1))
sketch1.addConstraint(Sketcher.Constraint("Horizontal", 0))
sketch1.addConstraint(Sketcher.Constraint("Vertical", 2))
sketch1.addConstraint(Sketcher.Constraint("Horizontal", 4))
sketch1.addConstraint(Sketcher.Constraint("Vertical", 6))
sketch1.addConstraint(Sketcher.Constraint("Horizontal", 10))
sketch1.addConstraint(Sketcher.Constraint("Vertical", 14))
sketch1.addConstraint(Sketcher.Constraint("Horizontal", 16))
sketch1.addConstraint(Sketcher.Constraint("Vertical", 18))
sketch1.addConstraint(Sketcher.Constraint("Horizontal", 20))
sketch1.addConstraint(Sketcher.Constraint("Vertical", 22))
sketch1.addConstraint(Sketcher.Constraint("Horizontal", 24))
sketch1.addConstraint(Sketcher.Constraint("Vertical", 26))
sketch1.addConstraint(Sketcher.Constraint("Horizontal", 28))
sketch1.addConstraint(Sketcher.Constraint("Vertical", 32))
sketch1.addConstraint(Sketcher.Constraint("Horizontal", 36))
sketch1.addConstraint(Sketcher.Constraint("Vertical", 38))
sketch1.addConstraint(Sketcher.Constraint("Horizontal", 40))
sketch1.addConstraint(Sketcher.Constraint("Vertical", 42))
sketch1.addConstraint(Sketcher.Constraint("Horizontal", 44))
sketch1.addConstraint(Sketcher.Constraint("Vertical", 46))
sketch1.addConstraint(Sketcher.Constraint("Horizontal", 48))
sketch1.addConstraint(Sketcher.Constraint("Vertical", 50))
sketch1.addConstraint(Sketcher.Constraint("Horizontal", 54))
sketch1.addConstraint(Sketcher.Constraint("Vertical", 58))
sketch1.addConstraint(Sketcher.Constraint("Horizontal", 60))
sketch1.addConstraint(Sketcher.Constraint("Vertical", 62))
sketch1.addConstraint(Sketcher.Constraint("Horizontal", 64))
sketch1.addConstraint(Sketcher.Constraint("Vertical", 66))
sketch1.addConstraint(Sketcher.Constraint("Horizontal", 68))
sketch1.addConstraint(Sketcher.Constraint("Vertical", 70))
sketch1.addConstraint(Sketcher.Constraint("Horizontal", 72))
sketch1.addConstraint(Sketcher.Constraint("Vertical", 76))
sketch1.addConstraint(Sketcher.Constraint("Horizontal", 80))
sketch1.addConstraint(Sketcher.Constraint("Vertical", 82))
sketch1.addConstraint(Sketcher.Constraint("Horizontal", 84))
sketch1.addConstraint(Sketcher.Constraint("Vertical", 86))
sketch1.addConstraint(Sketcher.Constraint("Equal", 1, 3))
sketch1.addConstraint(Sketcher.Constraint("Equal", 3, 5))
sketch1.addConstraint(Sketcher.Constraint("Equal", 7, 9))
sketch1.addConstraint(Sketcher.Constraint("Equal", 9, 11))
sketch1.addConstraint(Sketcher.Constraint("Equal", 11, 13))
sketch1.addConstraint(Sketcher.Constraint("Equal", 5, 15))
sketch1.addConstraint(Sketcher.Constraint("Equal", 15, 17))
sketch1.addConstraint(Sketcher.Constraint("Equal", 17, 19))
sketch1.addConstraint(Sketcher.Constraint("Equal", 19, 23))
sketch1.addConstraint(Sketcher.Constraint("Equal", 23, 25))
sketch1.addConstraint(Sketcher.Constraint("Equal", 25, 27))
sketch1.addConstraint(Sketcher.Constraint("Equal", 13, 29))
sketch1.addConstraint(Sketcher.Constraint("Equal", 27, 31))
sketch1.addConstraint(Sketcher.Constraint("Equal", 31, 33))
sketch1.addConstraint(Sketcher.Constraint("Equal", 33, 35))
sketch1.addConstraint(Sketcher.Constraint("Equal", 35, 37))
sketch1.addConstraint(Sketcher.Constraint("Equal", 37, 39))
sketch1.addConstraint(Sketcher.Constraint("Equal", 39, 41))
sketch1.addConstraint(Sketcher.Constraint("Equal", 21, 43))
sketch1.addConstraint(Sketcher.Constraint("Equal", 41, 45))
sketch1.addConstraint(Sketcher.Constraint("Equal", 45, 47))
sketch1.addConstraint(Sketcher.Constraint("Equal", 47, 49))
sketch1.addConstraint(Sketcher.Constraint("Equal", 49, 51))
sketch1.addConstraint(Sketcher.Constraint("Equal", 51, 53))
sketch1.addConstraint(Sketcher.Constraint("Equal", 53, 55))
sketch1.addConstraint(Sketcher.Constraint("Equal", 29, 57))
sketch1.addConstraint(Sketcher.Constraint("Equal", 55, 59))
sketch1.addConstraint(Sketcher.Constraint("Equal", 59, 61))
sketch1.addConstraint(Sketcher.Constraint("Equal", 61, 63))
sketch1.addConstraint(Sketcher.Constraint("Equal", 43, 65))
sketch1.addConstraint(Sketcher.Constraint("Equal", 63, 67))
sketch1.addConstraint(Sketcher.Constraint("Equal", 67, 69))
sketch1.addConstraint(Sketcher.Constraint("Equal", 69, 71))
sketch1.addConstraint(Sketcher.Constraint("Equal", 57, 73))
sketch1.addConstraint(Sketcher.Constraint("Equal", 73, 75))
sketch1.addConstraint(Sketcher.Constraint("Equal", 75, 77))
sketch1.addConstraint(Sketcher.Constraint("Equal", 77, 79))
sketch1.addConstraint(Sketcher.Constraint("Equal", 71, 81))
sketch1.addConstraint(Sketcher.Constraint("Equal", 81, 83))
sketch1.addConstraint(Sketcher.Constraint("Equal", 83, 85))
sketch1.addConstraint(Sketcher.Constraint("Equal", 65, 87))
sketch1.addConstraint(Sketcher.Constraint("Perpendicular", 8, 12))
sketch1.addConstraint(Sketcher.Constraint("Parallel", 12, 30))
sketch1.addConstraint(Sketcher.Constraint("Perpendicular", 30, 34))
sketch1.addConstraint(Sketcher.Constraint("Parallel", 34, 52))
sketch1.addConstraint(Sketcher.Constraint("Perpendicular", 52, 56))
sketch1.addConstraint(Sketcher.Constraint("Perpendicular", 56, 78))
sketch1.addConstraint(Sketcher.Constraint("Horizontal", 7, 3, 13, 3))
sketch1.addConstraint(Sketcher.Constraint("Horizontal", 5, 3, 15, 3))
sketch1.addConstraint(Sketcher.Constraint("Horizontal", 1, 3, 19, 3))
sketch1.addConstraint(Sketcher.Constraint("Horizontal", 49, 3, 59, 3))
sketch1.addConstraint(Sketcher.Constraint("Horizontal", 45, 3, 63, 3))
sketch1.addConstraint(Sketcher.Constraint("Horizontal", 29, 3, 79, 3))
sketch1.addConstraint(Sketcher.Constraint("Horizontal", 25, 3, 83, 3))
sketch1.addConstraint(Sketcher.Constraint("Horizontal", 87, 3, 3, 2))
sketch1.addConstraint(Sketcher.Constraint("Horizontal", 8, 2, 11, 1))
sketch1.addConstraint(Sketcher.Constraint("Horizontal", 77, 3, 31, 1))
sketch1.addConstraint(Sketcher.Constraint("Horizontal", 75, 3, 32, 2))
sketch1.addConstraint(Sketcher.Constraint("Horizontal", 42, 2, 47, 2))
sketch1.addConstraint(Sketcher.Constraint("Horizontal", 51, 1, 56, 2))
sketch1.addConstraint(Sketcher.Constraint("Horizontal", 33, 1, 74, 2))
sketch1.addConstraint(Sketcher.Constraint("Horizontal", 30, 2, 77, 1))
sketch1.addConstraint(Sketcher.Constraint("Vertical", 23, 3, 41, 3))
sketch1.addConstraint(Sketcher.Constraint("Vertical", 19, 3, 45, 3))
sketch1.addConstraint(Sketcher.Constraint("Vertical", 7, 3, 57, 3))
sketch1.addConstraint(Sketcher.Constraint("Vertical", 3, 3, 61, 3))
sketch1.addConstraint(Sketcher.Constraint("Vertical", 71, 3, 81, 3))
sketch1.addConstraint(Sketcher.Constraint("Vertical", 67, 3, 85, 3))
sketch1.addConstraint(Sketcher.Constraint("Vertical", 8, 2, 55, 1))
sketch1.addConstraint(Sketcher.Constraint("Vertical", 64, 2, 69, 2))
sketch1.addConstraint(Sketcher.Constraint("Equal", 0, 20))
sketch1.addConstraint(Sketcher.Constraint("Equal", 28, 36))
sketch1.addConstraint(Sketcher.Constraint("Equal", 10, 54))
sketch1.addConstraint(Sketcher.Constraint("Equal", 36, 80))
sketch1.addConstraint(Sketcher.Constraint("Equal", 80, 6))
sketch1.addConstraint(Sketcher.Constraint("Equal", 64, 22))
sketch1.addConstraint(Sketcher.Constraint("Equal", 60, 26))
sketch1.addConstraint(Sketcher.Constraint("Equal", 54, 32))
sketch1.addConstraint(Sketcher.Constraint("Equal", 26, 38))
sketch1.addConstraint(Sketcher.Constraint("Equal", 14, 58))
sketch1.addConstraint(Sketcher.Constraint("Equal", 22, 66))
sketch1.addConstraint(Sketcher.Constraint("Equal", 12, 30))
sketch1.addConstraint(Sketcher.Constraint("Equal", 30, 34))
sketch1.addConstraint(Sketcher.Constraint("Diameter", 88, 3.0))
sketch1.addConstraint(Sketcher.Constraint("Radius", 21, 1.0))
sketch1.addConstraint(Sketcher.Constraint("Radius", 1, 0.3))
sketch1.addConstraint(Sketcher.Constraint("DistanceX", 4, 2, 4, 1, 1.0))
sketch1.addConstraint(Sketcher.Constraint("DistanceX", 0, 1, 0, 2, 3.2))
sketch1.addConstraint(Sketcher.Constraint("DistanceX", -1, 1, 37, 1, 14.0))
sketch1.addConstraint(Sketcher.Constraint("DistanceY", -1, 1, 35, 3, 11.8))
sketch1.addConstraint(Sketcher.Constraint("DistanceX", -1, 1, 88, 3, 7.5))
sketch1.addConstraint(Sketcher.Constraint("DistanceY", -1, 1, 88, 3, 7.5))
sketch1.addConstraint(Sketcher.Constraint("Radius", 7, 0.305736))
sketch1.addConstraint(Sketcher.Constraint("DistanceX", 10, 1, 10, 2, 5.337258))
sketch1.addConstraint(Sketcher.Constraint("DistanceX", 28, 2, 28, 1, 0.768629))
sketch1.addConstraint(Sketcher.Constraint("DistanceX", 40, 1, 40, 2, 0.397149))
sketch1.addConstraint(Sketcher.Constraint("DistanceX", 48, 1, 48, 2, 1.00168))
sketch1.addConstraint(Sketcher.Constraint("DistanceX", 72, 1, 72, 2, 0.760779))
sketch1.addConstraint(Sketcher.Constraint("DistanceY", 42, 1, 42, 2, 3.189008))
sketch1.addConstraint(Sketcher.Constraint("DistanceY", 70, 1, 70, 2, 1.001191))
sketch1.addConstraint(Sketcher.Constraint("DistanceX", -1, 1, 55, 3, 4.8302))
sketch1.addConstraint(Sketcher.Constraint("DistanceX", 24, 2, 24, 1, 0.391887))
sketch1.addConstraint(Sketcher.Constraint("DistanceY", -1, 1, 33, 3, 10.141742))
pad1 = body.newObject("PartDesign::Pad", "Pad")
pad1.Profile = sketch1
pad1.Length = 222.5

doc.recompute()
